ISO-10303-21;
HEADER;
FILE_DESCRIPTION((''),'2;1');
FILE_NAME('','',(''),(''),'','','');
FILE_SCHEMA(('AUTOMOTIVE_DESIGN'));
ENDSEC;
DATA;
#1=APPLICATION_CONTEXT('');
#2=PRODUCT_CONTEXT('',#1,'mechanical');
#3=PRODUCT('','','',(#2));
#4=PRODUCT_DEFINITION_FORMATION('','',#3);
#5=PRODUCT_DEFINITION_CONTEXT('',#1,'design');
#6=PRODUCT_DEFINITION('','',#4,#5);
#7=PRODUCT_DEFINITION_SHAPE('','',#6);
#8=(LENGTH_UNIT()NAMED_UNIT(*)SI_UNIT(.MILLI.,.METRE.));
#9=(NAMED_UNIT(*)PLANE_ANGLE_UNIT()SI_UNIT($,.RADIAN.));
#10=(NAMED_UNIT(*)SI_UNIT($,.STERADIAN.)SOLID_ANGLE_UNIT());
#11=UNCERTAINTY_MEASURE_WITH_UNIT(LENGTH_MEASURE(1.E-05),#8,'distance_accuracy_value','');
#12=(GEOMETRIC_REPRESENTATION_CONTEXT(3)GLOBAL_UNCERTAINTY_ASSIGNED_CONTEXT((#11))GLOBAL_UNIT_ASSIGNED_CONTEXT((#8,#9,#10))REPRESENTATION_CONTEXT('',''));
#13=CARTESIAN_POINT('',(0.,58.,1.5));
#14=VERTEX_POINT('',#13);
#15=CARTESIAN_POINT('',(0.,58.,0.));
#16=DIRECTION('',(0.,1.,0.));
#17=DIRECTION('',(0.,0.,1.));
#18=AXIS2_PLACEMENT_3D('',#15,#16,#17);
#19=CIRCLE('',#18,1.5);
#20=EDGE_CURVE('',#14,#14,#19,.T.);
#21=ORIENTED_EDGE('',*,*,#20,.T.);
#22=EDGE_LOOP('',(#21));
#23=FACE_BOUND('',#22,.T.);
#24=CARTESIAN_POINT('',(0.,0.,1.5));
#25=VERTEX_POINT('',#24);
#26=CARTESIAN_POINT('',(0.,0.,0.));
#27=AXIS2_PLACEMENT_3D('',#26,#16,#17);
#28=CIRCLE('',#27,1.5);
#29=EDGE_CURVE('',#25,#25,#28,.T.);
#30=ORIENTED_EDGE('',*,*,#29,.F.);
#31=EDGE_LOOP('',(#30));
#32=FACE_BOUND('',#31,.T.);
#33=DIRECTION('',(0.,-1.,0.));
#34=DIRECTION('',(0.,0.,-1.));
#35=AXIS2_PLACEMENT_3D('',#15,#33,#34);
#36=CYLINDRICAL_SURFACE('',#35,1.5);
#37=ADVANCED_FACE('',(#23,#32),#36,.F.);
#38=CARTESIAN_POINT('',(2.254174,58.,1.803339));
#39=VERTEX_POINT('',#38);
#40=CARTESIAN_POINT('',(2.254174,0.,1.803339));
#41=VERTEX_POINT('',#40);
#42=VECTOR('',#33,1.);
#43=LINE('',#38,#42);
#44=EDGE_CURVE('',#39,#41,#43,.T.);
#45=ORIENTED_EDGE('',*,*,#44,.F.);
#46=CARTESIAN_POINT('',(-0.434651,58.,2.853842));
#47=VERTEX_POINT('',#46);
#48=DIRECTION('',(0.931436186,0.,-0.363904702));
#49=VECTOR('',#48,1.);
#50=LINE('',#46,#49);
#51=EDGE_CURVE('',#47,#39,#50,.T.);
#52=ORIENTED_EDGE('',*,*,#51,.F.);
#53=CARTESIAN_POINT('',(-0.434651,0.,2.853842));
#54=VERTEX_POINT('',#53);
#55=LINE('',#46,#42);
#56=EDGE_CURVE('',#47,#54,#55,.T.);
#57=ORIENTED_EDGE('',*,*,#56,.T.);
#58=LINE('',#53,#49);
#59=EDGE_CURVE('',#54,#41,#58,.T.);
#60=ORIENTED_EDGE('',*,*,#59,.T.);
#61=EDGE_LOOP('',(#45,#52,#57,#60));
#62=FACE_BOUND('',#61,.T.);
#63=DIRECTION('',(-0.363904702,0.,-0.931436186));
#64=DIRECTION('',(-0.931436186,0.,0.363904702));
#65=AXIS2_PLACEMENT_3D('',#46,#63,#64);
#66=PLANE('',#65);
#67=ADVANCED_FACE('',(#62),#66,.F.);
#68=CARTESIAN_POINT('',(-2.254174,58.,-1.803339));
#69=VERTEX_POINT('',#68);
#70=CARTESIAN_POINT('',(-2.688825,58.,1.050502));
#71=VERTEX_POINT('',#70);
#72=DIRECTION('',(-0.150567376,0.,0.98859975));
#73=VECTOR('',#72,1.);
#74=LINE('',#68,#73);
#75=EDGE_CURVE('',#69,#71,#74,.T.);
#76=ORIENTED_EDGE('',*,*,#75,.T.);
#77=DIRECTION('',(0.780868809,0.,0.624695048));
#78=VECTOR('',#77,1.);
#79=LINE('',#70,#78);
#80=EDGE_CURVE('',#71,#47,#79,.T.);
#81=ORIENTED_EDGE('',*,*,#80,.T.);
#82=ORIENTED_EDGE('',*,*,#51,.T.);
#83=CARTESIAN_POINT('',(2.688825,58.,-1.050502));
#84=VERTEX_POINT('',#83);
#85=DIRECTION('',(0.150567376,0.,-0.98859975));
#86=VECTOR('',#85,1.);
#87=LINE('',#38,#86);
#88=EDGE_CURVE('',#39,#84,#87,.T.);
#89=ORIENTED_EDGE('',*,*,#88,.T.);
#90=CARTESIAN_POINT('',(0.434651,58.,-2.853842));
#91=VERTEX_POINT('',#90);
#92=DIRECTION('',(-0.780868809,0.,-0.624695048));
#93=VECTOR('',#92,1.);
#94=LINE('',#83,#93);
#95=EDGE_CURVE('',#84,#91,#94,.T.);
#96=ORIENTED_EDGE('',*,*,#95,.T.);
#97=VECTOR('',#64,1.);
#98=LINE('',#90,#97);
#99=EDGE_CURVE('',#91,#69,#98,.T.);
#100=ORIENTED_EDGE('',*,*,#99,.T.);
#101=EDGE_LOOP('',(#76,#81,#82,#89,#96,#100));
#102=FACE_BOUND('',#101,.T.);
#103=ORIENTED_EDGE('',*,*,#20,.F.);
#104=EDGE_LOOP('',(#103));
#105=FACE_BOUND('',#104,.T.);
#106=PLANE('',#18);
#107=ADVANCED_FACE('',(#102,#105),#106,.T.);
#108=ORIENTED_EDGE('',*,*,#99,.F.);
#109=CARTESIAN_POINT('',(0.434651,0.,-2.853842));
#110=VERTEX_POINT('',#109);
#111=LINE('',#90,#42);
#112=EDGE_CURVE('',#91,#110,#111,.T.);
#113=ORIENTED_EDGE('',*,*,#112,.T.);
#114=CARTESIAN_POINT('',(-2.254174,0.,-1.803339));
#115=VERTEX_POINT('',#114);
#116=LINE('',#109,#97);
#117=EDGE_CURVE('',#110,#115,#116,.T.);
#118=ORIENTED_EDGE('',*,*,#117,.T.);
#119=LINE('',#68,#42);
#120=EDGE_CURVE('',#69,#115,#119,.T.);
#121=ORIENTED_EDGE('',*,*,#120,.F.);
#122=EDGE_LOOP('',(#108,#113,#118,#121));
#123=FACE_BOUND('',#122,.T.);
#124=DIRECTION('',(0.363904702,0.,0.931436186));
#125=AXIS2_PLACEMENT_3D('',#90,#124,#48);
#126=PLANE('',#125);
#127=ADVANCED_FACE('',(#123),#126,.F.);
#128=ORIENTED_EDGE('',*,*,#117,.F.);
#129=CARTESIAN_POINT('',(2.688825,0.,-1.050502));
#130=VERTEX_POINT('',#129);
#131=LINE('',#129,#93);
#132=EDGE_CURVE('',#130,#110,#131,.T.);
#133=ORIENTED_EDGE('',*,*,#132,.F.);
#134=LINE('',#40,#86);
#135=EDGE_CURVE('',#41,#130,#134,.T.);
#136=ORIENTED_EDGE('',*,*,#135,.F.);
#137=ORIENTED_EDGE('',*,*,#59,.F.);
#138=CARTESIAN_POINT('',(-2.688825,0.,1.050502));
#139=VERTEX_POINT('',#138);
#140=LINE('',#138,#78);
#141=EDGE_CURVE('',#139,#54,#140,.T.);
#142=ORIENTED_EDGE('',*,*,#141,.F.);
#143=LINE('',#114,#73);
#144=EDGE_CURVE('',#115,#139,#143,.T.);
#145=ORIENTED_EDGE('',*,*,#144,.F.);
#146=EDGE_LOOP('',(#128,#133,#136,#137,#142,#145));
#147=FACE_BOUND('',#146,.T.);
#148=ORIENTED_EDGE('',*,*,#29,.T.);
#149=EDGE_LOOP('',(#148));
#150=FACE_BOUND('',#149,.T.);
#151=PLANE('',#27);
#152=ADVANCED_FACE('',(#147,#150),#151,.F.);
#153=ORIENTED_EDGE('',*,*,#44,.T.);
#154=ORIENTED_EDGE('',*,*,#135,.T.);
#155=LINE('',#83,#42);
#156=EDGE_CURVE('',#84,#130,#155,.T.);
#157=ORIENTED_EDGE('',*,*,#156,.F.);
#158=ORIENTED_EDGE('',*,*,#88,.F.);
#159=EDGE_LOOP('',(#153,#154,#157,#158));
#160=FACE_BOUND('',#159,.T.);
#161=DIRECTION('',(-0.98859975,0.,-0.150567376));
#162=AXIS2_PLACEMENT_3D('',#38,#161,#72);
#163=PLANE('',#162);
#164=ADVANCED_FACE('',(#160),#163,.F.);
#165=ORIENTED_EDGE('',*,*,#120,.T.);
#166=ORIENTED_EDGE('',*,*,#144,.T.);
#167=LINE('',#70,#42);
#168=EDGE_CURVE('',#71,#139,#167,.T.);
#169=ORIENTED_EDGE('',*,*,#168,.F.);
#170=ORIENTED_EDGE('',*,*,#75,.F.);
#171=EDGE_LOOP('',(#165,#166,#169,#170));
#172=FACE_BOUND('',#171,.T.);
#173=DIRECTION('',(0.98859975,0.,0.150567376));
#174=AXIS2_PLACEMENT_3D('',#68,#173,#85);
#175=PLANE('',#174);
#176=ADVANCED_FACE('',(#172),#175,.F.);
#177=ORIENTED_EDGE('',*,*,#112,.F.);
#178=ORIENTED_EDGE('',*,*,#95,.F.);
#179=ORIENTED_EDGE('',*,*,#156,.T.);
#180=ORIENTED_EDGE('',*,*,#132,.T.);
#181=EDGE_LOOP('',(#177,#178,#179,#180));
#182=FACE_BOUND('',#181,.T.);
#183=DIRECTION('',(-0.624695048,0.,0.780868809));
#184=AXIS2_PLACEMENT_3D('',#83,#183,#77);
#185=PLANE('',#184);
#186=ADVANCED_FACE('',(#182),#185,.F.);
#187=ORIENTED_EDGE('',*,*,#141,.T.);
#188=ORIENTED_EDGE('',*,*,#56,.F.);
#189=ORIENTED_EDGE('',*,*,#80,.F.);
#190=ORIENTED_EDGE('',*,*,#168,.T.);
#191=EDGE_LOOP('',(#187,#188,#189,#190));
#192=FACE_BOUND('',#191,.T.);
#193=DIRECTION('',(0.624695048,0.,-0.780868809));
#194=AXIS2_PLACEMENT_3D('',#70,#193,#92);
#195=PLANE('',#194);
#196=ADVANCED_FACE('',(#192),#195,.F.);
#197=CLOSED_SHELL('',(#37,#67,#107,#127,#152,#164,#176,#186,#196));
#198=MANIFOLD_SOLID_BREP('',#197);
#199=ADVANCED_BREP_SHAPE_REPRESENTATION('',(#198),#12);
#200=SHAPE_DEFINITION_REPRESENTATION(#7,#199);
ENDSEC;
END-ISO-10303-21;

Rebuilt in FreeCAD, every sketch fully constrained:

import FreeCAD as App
import Part
import Sketcher

V = App.Vector

doc = App.newDocument("Part")
body = doc.addObject("PartDesign::Body", "Body")

sketch1 = body.newObject("Sketcher::SketchObject", "Sketch")
sketch1.AttachmentSupport = (doc.getObject("XZ_Plane"), [""])
sketch1.MapMode = "FlatFace"
sketch1.addGeometry([
    Part.LineSegment(V(2.3, 1.8, 0), V(2.7, -1.1, 0)),
    Part.LineSegment(V(2.7, -1.1, 0), V(0.4, -2.9, 0)),
    Part.LineSegment(V(0.4, -2.9, 0), V(-2.3, -1.8, 0)),
    Part.LineSegment(V(-2.3, -1.8, 0), V(-2.7, 1.1, 0)),
    Part.LineSegment(V(-2.7, 1.1, 0), V(-0.4, 2.9, 0)),
    Part.LineSegment(V(-0.4, 2.9, 0), V(2.3, 1.8, 0)),
    Part.Circle(V(0, 0, 0), V(0, 0, 1), 1.5),
], False)
sketch1.addConstraint([
    Sketcher.Constraint("Coincident", 0, 2, 1, 1),
    Sketcher.Constraint("Coincident", 1, 2, 2, 1),
    Sketcher.Constraint("Coincident", 2, 2, 3, 1),
    Sketcher.Constraint("Coincident", 3, 2, 4, 1),
    Sketcher.Constraint("Coincident", 4, 2, 5, 1),
    Sketcher.Constraint("Coincident", 5, 2, 0, 1),
    Sketcher.Constraint("Coincident", 6, 3, -1, 1),
    Sketcher.Constraint("Symmetric", 0, 2, 3, 2, -1, 1),
    Sketcher.Constraint("Symmetric", 1, 2, 4, 2, -1, 1),
    Sketcher.Constraint("Symmetric", 2, 2, 5, 2, -1, 1),
    Sketcher.Constraint("Equal", 0, 1),
    Sketcher.Constraint("Equal", 1, 2),
    Sketcher.Constraint("Diameter", 6, 3.0),
    Sketcher.Constraint("DistanceX", 2, 2, 0, 2, 4.942999),
    Sketcher.Constraint("DistanceX", 4, 2, 1, 2, 0.869301),
    Sketcher.Constraint("Distance", 0, 2.886751),
    Sketcher.Constraint("DistanceY", 1, 2, -1, 1, 2.853842),
])
pad1 = body.newObject("PartDesign::Pad", "Pad")
pad1.Profile = sketch1
pad1.Length = 58
pad1.Reversed = True

doc.recompute()
